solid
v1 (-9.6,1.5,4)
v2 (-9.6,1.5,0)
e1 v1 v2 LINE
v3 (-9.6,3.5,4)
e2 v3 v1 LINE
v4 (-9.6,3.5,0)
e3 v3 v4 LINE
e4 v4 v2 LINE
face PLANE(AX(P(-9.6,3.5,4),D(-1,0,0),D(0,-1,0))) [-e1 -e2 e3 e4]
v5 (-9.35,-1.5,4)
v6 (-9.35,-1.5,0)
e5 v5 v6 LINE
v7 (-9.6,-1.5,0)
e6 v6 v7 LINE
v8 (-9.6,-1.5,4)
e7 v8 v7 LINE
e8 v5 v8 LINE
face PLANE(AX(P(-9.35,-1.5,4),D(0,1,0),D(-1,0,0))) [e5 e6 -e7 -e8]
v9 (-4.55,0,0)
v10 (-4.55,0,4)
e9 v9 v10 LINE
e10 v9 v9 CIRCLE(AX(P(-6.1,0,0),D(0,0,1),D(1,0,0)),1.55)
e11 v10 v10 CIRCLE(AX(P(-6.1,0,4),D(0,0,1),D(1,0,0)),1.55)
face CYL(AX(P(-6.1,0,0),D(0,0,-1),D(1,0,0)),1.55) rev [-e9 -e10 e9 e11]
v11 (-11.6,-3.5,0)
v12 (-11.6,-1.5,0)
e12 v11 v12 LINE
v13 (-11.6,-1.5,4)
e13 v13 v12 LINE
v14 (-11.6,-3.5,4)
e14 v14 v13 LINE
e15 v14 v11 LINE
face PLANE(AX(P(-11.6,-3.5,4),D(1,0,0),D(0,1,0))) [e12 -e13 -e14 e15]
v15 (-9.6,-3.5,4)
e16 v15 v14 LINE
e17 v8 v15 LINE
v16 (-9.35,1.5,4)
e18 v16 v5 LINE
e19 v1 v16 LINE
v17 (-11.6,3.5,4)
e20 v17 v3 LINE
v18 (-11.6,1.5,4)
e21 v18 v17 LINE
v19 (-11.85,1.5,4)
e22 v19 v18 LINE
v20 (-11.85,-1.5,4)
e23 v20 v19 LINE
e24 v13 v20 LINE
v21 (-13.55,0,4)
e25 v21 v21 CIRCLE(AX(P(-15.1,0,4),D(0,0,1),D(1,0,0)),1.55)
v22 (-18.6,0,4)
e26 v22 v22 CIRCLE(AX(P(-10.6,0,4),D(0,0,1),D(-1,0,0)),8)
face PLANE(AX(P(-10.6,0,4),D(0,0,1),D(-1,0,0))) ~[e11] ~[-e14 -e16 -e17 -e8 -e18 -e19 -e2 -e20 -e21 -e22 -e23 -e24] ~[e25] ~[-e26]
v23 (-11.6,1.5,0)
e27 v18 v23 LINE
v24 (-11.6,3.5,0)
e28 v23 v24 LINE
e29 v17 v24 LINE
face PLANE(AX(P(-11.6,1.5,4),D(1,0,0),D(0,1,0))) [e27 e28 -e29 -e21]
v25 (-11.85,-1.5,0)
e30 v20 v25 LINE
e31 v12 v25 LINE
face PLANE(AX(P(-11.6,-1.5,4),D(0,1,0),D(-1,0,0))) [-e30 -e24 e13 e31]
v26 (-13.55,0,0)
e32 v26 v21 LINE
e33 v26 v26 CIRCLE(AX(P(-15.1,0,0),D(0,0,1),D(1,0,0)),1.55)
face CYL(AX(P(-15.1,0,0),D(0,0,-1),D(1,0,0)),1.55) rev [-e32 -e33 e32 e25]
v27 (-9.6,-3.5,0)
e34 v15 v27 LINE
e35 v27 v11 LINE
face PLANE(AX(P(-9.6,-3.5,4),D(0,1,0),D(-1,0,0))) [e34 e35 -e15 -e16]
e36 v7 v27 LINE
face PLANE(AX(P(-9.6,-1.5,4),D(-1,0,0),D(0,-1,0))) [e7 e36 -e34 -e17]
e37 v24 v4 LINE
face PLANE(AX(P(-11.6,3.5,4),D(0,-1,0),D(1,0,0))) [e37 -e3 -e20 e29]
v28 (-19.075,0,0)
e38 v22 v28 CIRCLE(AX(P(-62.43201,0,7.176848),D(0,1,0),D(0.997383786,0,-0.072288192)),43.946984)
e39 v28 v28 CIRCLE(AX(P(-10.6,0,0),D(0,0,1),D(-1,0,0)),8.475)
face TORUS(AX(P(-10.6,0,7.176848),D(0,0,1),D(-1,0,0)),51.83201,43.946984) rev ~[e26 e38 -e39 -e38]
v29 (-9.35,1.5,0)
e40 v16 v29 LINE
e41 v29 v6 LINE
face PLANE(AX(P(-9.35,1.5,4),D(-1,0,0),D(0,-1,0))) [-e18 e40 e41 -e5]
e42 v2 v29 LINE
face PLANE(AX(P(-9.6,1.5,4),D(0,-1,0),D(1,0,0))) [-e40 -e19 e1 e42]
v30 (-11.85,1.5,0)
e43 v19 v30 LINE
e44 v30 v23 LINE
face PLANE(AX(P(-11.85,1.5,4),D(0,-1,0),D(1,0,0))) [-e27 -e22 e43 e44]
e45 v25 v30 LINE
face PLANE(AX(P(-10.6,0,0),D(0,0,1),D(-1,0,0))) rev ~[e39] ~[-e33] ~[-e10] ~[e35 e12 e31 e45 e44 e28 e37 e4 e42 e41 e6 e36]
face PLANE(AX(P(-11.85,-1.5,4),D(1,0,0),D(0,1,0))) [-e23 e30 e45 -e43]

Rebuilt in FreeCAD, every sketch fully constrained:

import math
import FreeCAD as App
import Part
import Sketcher
Q = App.Units.Quantity

doc = App.newDocument("Part")
body = doc.addObject("PartDesign::Body", "Body")

# Sketch on XZ plane
sketch1 = body.newObject("Sketcher::SketchObject", "Sketch")
sketch1.AttachmentSupport = (doc.getObject("XZ_Plane"), [""])
sketch1.MapMode = "FlatFace"
sketch1.addGeometry([
    Part.LineSegment(App.Vector(-10.6, 0, 0), App.Vector(-19.075, 0, 0)),
    Part.ArcOfCircle(Part.Circle(App.Vector(-62.43201, 7.176848, 0), App.Vector(0, 0, 1), 43.946984), math.radians(-9.398896), math.radians(-4.145424)),
    Part.LineSegment(App.Vector(-18.6, 4, 0), App.Vector(-10.6, 4, 0)),
    Part.LineSegment(App.Vector(-10.6, 4, 0), App.Vector(-10.6, 0, 0)),
], False)
sketch1.addGeometry(Part.LineSegment(App.Vector(-10.6, 0, 0), App.Vector(-10.6, 7.176848, 0)), True)  # axis
sketch1.addConstraint([
    Sketcher.Constraint("Coincident", 0, 2, 1, 1),
    Sketcher.Constraint("Coincident", 1, 2, 2, 1),
    Sketcher.Constraint("Coincident", 2, 2, 3, 1),
    Sketcher.Constraint("Coincident", 3, 2, 0, 1),
    Sketcher.Constraint("Horizontal", 0),
    Sketcher.Constraint("Horizontal", 2),
    Sketcher.Constraint("Vertical", 3),
    Sketcher.Constraint("Vertical", 4),
    Sketcher.Constraint("Coincident", 4, 1, 3, 2),
    Sketcher.Constraint("PointOnObject", 0, 2, -1),
    Sketcher.Constraint("Horizontal", 1, 3, 4, 2),
    Sketcher.Constraint("DistanceX", 2, 1, 2, 2, Q("8 mm")),
    Sketcher.Constraint("DistanceY", 3, 2, 3, 1, Q("4 mm")),
    Sketcher.Constraint("Radius", 1, Q("43.947 mm")),
    Sketcher.Constraint("DistanceX", 1, 2, -1, 1, Q("18.6 mm")),
    Sketcher.Constraint("DistanceX", 0, 2, 0, 1, Q("8.475 mm")),
])
revolution = body.newObject("PartDesign::Revolution", "Revolution")
revolution.Profile = sketch1
revolution.ReferenceAxis = (sketch1, ["Axis0"])
revolution.Angle = 360

# Sketch on XY plane
sketch2 = body.newObject("Sketcher::SketchObject", "Sketch001")
sketch2.AttachmentSupport = (doc.getObject("XY_Plane"), [""])
sketch2.MapMode = "FlatFace"
sketch2.addGeometry([
    Part.Circle(App.Vector(-15.1, 0, 0), App.Vector(0, 0, 1), 1.55),
    Part.Circle(App.Vector(-6.1, 0, 0), App.Vector(0, 0, 1), 1.55),
], False)
sketch2.addConstraint([
    Sketcher.Constraint("Equal", 0, 1),
    Sketcher.Constraint("PointOnObject", 0, 3, -1),
    Sketcher.Constraint("PointOnObject", 1, 3, -1),
    Sketcher.Constraint("Diameter", 0, Q("3.1 mm")),
    Sketcher.Constraint("DistanceX", 0, 3, 1, 3, Q("9 mm")),
    Sketcher.Constraint("DistanceX", 0, 3, -1, 1, Q("15.1 mm")),
])
pocket1 = body.newObject("PartDesign::Pocket", "Pocket")
pocket1.Profile = sketch2
pocket1.Length = 4
pocket1.Reversed = True

# Sketch on XY plane
sketch3 = body.newObject("Sketcher::SketchObject", "Sketch002")
sketch3.AttachmentSupport = (doc.getObject("XY_Plane"), [""])
sketch3.MapMode = "FlatFace"
sketch3.AttachmentOffset = App.Placement(App.Vector(0, 0, 4), App.Rotation())
sketch3.addGeometry([
    Part.LineSegment(App.Vector(-11.6, -3.5, 0), App.Vector(-9.6, -3.5, 0)),  # 0
    Part.LineSegment(App.Vector(-9.6, -3.5, 0), App.Vector(-9.6, -1.5, 0)),  # 1
    Part.LineSegment(App.Vector(-9.6, -1.5, 0), App.Vector(-9.35, -1.5, 0)),  # 2
    Part.LineSegment(App.Vector(-9.35, -1.5, 0), App.Vector(-9.35, 1.5, 0)),  # 3
    Part.LineSegment(App.Vector(-9.35, 1.5, 0), App.Vector(-9.6, 1.5, 0)),  # 4
    Part.LineSegment(App.Vector(-9.6, 1.5, 0), App.Vector(-9.6, 3.5, 0)),  # 5
    Part.LineSegment(App.Vector(-9.6, 3.5, 0), App.Vector(-11.6, 3.5, 0)),  # 6
    Part.LineSegment(App.Vector(-11.6, 3.5, 0), App.Vector(-11.6, 1.5, 0)),  # 7
    Part.LineSegment(App.Vector(-11.6, 1.5, 0), App.Vector(-11.85, 1.5, 0)),  # 8
    Part.LineSegment(App.Vector(-11.85, 1.5, 0), App.Vector(-11.85, -1.5, 0)),  # 9
    Part.LineSegment(App.Vector(-11.85, -1.5, 0), App.Vector(-11.6, -1.5, 0)),  # 10
    Part.LineSegment(App.Vector(-11.6, -1.5, 0), App.Vector(-11.6, -3.5, 0)),  # 11
], False)
sketch3.addConstraint([
    Sketcher.Constraint("Coincident", 0, 2, 1, 1),
    Sketcher.Constraint("Coincident", 1, 2, 2, 1),
    Sketcher.Constraint("Coincident", 2, 2, 3, 1),
    Sketcher.Constraint("Coincident", 3, 2, 4, 1),
    Sketcher.Constraint("Coincident", 4, 2, 5, 1),
    Sketcher.Constraint("Coincident", 5, 2, 6, 1),
    Sketcher.Constraint("Coincident", 6, 2, 7, 1),
    Sketcher.Constraint("Coincident", 7, 2, 8, 1),
    Sketcher.Constraint("Coincident", 8, 2, 9, 1),
    Sketcher.Constraint("Coincident", 9, 2, 10, 1),
    Sketcher.Constraint("Coincident", 10, 2, 11, 1),
    Sketcher.Constraint("Coincident", 11, 2, 0, 1),
    Sketcher.Constraint("Horizontal", 0),
    Sketcher.Constraint("Vertical", 1),
    Sketcher.Constraint("Horizontal", 2),
    Sketcher.Constraint("Vertical", 3),
    Sketcher.Constraint("Horizontal", 4),
    Sketcher.Constraint("Vertical", 5),
    Sketcher.Constraint("Horizontal", 6),
    Sketcher.Constraint("Vertical", 7),
    Sketcher.Constraint("Horizontal", 8),
    Sketcher.Constraint("Vertical", 9),
    Sketcher.Constraint("Horizontal", 10),
    Sketcher.Constraint("Vertical", 11),
    Sketcher.Constraint("Symmetric", 1, 2, 4, 2, -1),
    Sketcher.Constraint("Symmetric", 7, 2, 10, 2, -1),
    Sketcher.Constraint("Horizontal", 4, 2, 7, 2),
    Sketcher.Constraint("Equal", 4, 8),
    Sketcher.Constraint("Equal", 6, 1),
    Sketcher.Constraint("Equal", 1, 5),
    Sketcher.Constraint("DistanceX", 0, 1, 0, 2, Q("2 mm")),
    Sketcher.Constraint("DistanceY", 3, 1, 3, 2, Q("3 mm")),
    Sketcher.Constraint("DistanceX", 8, 2, 3, 2, Q("2.5 mm")),
    Sketcher.Constraint("DistanceX", 0, 2, -1, 1, Q("9.6 mm")),
])
pocket2 = body.newObject("PartDesign::Pocket", "Pocket001")
pocket2.Profile = sketch3
pocket2.Length = 4

doc.recompute()
